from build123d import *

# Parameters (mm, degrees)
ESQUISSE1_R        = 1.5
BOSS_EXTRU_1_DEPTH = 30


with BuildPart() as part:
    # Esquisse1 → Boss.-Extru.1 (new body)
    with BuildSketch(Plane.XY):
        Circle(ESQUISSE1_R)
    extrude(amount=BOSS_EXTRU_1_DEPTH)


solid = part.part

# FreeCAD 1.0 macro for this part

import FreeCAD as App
import Part
import Sketcher

doc = App.newDocument("Part")
body = doc.addObject("PartDesign::Body", "Body")

# Sketch on XY plane
sketch1 = body.newObject("Sketcher::SketchObject", "Sketch")
sketch1.AttachmentSupport = (doc.getObject("XY_Plane"), [""])
sketch1.MapMode = "FlatFace"
sketch1.addGeometry(Part.Circle(App.Vector(0, 0, 0), App.Vector(0, 0, 1), 1.5), False)
sketch1.addConstraint(Sketcher.Constraint("Coincident", 0, 3, -1, 1))
sketch1.addConstraint(Sketcher.Constraint("Diameter", 0, 3.0))
pad1 = body.newObject("PartDesign::Pad", "Pad")
pad1.Profile = sketch1
pad1.Length = 30

doc.recompute()
